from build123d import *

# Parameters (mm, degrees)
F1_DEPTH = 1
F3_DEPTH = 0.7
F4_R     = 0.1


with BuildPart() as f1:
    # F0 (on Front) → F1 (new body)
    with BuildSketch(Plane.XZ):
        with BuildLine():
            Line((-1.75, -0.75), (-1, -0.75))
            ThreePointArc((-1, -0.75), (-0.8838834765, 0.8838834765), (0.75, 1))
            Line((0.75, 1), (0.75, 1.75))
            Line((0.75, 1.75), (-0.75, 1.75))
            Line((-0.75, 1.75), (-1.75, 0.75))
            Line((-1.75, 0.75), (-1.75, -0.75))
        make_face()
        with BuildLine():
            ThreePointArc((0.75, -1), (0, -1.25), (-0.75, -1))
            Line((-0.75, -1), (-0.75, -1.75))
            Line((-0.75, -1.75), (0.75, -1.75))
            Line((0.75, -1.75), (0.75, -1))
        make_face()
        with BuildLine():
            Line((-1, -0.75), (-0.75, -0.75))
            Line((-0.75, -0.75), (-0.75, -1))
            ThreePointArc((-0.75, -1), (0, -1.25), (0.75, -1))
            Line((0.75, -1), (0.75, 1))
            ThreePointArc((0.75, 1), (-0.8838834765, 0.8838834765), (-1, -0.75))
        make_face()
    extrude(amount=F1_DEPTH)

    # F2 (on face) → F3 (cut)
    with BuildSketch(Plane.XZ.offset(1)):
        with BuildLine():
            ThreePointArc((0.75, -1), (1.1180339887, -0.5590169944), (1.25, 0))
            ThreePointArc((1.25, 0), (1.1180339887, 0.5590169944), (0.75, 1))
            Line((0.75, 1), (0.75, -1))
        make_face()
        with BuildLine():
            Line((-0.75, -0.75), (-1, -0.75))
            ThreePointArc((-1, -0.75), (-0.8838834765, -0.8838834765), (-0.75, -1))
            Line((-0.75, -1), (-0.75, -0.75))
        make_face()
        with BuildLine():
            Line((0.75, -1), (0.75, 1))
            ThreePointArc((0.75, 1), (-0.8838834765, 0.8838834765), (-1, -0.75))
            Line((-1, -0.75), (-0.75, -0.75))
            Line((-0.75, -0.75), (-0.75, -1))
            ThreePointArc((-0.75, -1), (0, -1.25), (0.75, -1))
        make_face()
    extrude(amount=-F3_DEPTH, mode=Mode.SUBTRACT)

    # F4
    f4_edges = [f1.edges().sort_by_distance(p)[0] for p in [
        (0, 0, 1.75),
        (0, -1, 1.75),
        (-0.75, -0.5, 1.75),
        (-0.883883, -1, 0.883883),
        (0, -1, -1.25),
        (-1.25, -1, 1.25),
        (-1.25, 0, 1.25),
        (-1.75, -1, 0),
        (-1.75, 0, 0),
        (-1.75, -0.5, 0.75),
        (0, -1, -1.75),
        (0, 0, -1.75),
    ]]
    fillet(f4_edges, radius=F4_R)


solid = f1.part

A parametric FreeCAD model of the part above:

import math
import FreeCAD as App
import Part
import Sketcher
from FreeCAD import Vector
Q = App.Units.Quantity


def edges_at(feature, points):
    """Names of the edges that pass closest to the given points."""
    edges = feature.Shape.Edges
    near = lambda p: min(range(len(edges)), key=lambda i: edges[i].distToShape(Part.Vertex(*p))[0])
    return sorted({f"Edge{near(p) + 1}" for p in points})


def add_polygon(sketch, points):
    """Adds a closed chain of lines whose ends are joined by coincident constraints."""
    first, n = sketch.GeometryCount, len(points)
    for a, b in zip(points, points[1:] + points[:1]):
        sketch.addGeometry(Part.LineSegment(App.Vector(*a, 0), App.Vector(*b, 0)), False)
    for i in range(n):
        sketch.addConstraint(Sketcher.Constraint("Coincident", first + i, 2, first + (i + 1) % n, 1))

doc = App.newDocument("Part")
body = doc.addObject("PartDesign::Body", "Body")

# Sketch on XZ plane
sketch1 = doc.addObject("Sketcher::SketchObject", "Sketch")
body.addObject(sketch1)
sketch1.AttachmentSupport = (doc.XZ_Plane, [""])
sketch1.MapMode = "FlatFace"
add_polygon(sketch1, [(-1.75, -0.75), (-0.75, -0.75), (-0.75, -1.75), (0.75, -1.75), (0.75, 1.75), (-0.75, 1.75), (-1.75, 0.75)])  # lines 0-6
sketch1.addConstraint([
    Sketcher.Constraint("Horizontal", 0),
    Sketcher.Constraint("Vertical", 1),
    Sketcher.Constraint("Horizontal", 2),
    Sketcher.Constraint("Vertical", 3),
    Sketcher.Constraint("Horizontal", 4),
    Sketcher.Constraint("Vertical", 6),
    Sketcher.Constraint("Symmetric", 1, 2, 3, 2, -1, 1),
    Sketcher.Constraint("Vertical", 1, 2, 4, 2),
    Sketcher.Constraint("Equal", 0, 1),
    Sketcher.Constraint("Equal", 4, 6),
    Sketcher.Constraint("DistanceX", 0, 1, 0, 2, Q("1 mm")),
    Sketcher.Constraint("Angle", 5, Q("-135 deg")),
    Sketcher.Constraint("DistanceX", 2, 1, 2, 2, Q("1.5 mm")),
])
pad1 = doc.addObject("PartDesign::Pad", "Pad")
body.addObject(pad1)
pad1.Profile = sketch1
pad1.Length = 1

# Sketch on XZ plane
sketch2 = doc.addObject("Sketcher::SketchObject", "Sketch001")
body.addObject(sketch2)
sketch2.AttachmentSupport = (doc.XZ_Plane, [""])
sketch2.MapMode = "FlatFace"
sketch2.AttachmentOffset = App.Placement(Vector(0, 0, 1), App.Rotation())
sketch2.addGeometry([
    Part.ArcOfCircle(Part.Circle(Vector(0, 0, 0), Vector(0, 0, 1), 1.25), math.radians(-53.130102), math.radians(0)),  # 0
    Part.ArcOfCircle(Part.Circle(Vector(0, 0, 0), Vector(0, 0, 1), 1.25), math.radians(0), math.radians(53.130102)),  # 1
    Part.ArcOfCircle(Part.Circle(Vector(0, 0, 0), Vector(0, 0, 1), 1.25), math.radians(53.130102), math.radians(216.869898)),  # 2
    Part.ArcOfCircle(Part.Circle(Vector(0, 0, 0), Vector(0, 0, 1), 1.25), math.radians(-143.130102), math.radians(-126.869898)),  # 3
    Part.ArcOfCircle(Part.Circle(Vector(0, 0, 0), Vector(0, 0, 1), 1.25), math.radians(-126.869898), math.radians(-53.130102)),  # 4
], False)
sketch2.addConstraint([
    Sketcher.Constraint("Tangent", 0, 2, 1, 1),
    Sketcher.Constraint("Tangent", 1, 2, 2, 1),
    Sketcher.Constraint("Tangent", 2, 2, 3, 1),
    Sketcher.Constraint("Tangent", 3, 2, 4, 1),
    Sketcher.Constraint("Tangent", 4, 2, 0, 1),
    Sketcher.Constraint("Coincident", 0, 3, -1, 1),
    Sketcher.Constraint("Coincident", 2, 3, -1, 1),
    Sketcher.Constraint("PointOnObject", 0, 2, -1),
    Sketcher.Constraint("Horizontal", 3, 2, 4, 2),
    Sketcher.Constraint("Vertical", 1, 2, 4, 2),
    Sketcher.Constraint("Radius", 0, Q("1.25 mm")),
    Sketcher.Constraint("DistanceY", -1, 1, 1, 2, Q("1 mm")),
    Sketcher.Constraint("DistanceX", 2, 2, -1, 1, Q("1 mm")),
])
pocket1 = doc.addObject("PartDesign::Pocket", "Pocket")
body.addObject(pocket1)
pocket1.Profile = sketch2
pocket1.Length = 0.7
doc.recompute()

fillet = doc.addObject("PartDesign::Fillet", "Fillet")
body.addObject(fillet)
fillet.Base = (pocket1, edges_at(pocket1, [
    (0, 0, 1.75),
    (0, -1, 1.75),
    (-0.75, -0.5, 1.75),
    (-0.884, -1, 0.884),
    (0, -1, -1.25),
    (-1.25, -1, 1.25),
    (-1.25, 0, 1.25),
    (-1.75, -1, 0),
    (-1.75, 0, 0),
    (-1.75, -0.5, 0.75),
    (0, -1, -1.75),
    (0, 0, -1.75),
]))
fillet.Radius = 0.1

doc.recompute()
